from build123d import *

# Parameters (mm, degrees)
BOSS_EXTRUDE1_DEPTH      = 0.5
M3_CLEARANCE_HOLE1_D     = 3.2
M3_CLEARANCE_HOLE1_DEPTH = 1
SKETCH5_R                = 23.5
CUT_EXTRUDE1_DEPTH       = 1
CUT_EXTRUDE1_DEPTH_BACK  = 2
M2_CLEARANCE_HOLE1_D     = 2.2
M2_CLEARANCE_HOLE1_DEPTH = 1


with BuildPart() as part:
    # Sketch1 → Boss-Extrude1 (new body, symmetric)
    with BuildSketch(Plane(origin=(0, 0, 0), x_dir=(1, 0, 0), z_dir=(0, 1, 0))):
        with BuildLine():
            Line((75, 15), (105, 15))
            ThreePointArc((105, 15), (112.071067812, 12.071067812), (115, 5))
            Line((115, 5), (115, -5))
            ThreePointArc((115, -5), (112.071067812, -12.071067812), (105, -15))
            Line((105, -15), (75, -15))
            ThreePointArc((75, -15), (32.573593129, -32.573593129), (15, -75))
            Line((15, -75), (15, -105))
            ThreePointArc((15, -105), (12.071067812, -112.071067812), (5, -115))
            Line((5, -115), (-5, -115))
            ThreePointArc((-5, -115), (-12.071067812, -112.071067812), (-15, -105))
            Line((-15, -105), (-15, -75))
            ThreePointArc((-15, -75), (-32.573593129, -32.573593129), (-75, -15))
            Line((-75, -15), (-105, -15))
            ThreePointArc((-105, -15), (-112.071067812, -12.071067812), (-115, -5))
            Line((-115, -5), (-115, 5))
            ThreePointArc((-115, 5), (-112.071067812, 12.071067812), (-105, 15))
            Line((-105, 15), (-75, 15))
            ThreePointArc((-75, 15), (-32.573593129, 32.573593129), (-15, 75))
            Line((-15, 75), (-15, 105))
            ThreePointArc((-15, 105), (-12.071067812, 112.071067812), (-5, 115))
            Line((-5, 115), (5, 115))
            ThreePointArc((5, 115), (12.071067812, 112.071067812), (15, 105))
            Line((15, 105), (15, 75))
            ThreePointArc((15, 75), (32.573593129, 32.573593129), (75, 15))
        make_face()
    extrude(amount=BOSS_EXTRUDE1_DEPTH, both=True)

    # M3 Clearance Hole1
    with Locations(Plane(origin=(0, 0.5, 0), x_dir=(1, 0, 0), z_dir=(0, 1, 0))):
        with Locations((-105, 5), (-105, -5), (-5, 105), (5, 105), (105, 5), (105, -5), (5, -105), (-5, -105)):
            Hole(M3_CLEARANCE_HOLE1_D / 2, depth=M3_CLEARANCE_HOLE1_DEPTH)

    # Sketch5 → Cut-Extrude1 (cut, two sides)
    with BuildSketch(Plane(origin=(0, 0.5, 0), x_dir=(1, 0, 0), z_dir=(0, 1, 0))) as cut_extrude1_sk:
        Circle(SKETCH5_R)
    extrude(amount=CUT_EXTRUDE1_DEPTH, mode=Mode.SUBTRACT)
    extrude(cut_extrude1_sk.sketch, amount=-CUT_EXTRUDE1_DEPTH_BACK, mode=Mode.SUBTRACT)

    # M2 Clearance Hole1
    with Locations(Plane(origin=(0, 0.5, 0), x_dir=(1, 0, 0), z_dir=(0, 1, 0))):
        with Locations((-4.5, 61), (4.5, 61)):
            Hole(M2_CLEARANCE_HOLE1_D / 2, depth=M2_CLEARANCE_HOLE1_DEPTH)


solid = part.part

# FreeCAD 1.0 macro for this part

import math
import FreeCAD as App
import Part
import Sketcher

doc = App.newDocument("Part")
body = doc.addObject("PartDesign::Body", "Body")

sketch1 = body.newObject("Sketcher::SketchObject", "Sketch")
sketch1.AttachmentSupport = (doc.getObject("XZ_Plane"), [""])
sketch1.MapMode = "FlatFace"
sketch1.addGeometry([
    Part.LineSegment(App.Vector(105, -15, 0), App.Vector(75, -15, 0)),
    Part.ArcOfCircle(Part.Circle(App.Vector(75, -75, 0), App.Vector(0, 0, 1), 60), math.radians(90), math.radians(180)),
    Part.LineSegment(App.Vector(15, -75, 0), App.Vector(15, -105, 0)),
    Part.ArcOfCircle(Part.Circle(App.Vector(5, -105, 0), App.Vector(0, 0, 1), 10), math.radians(-90), math.radians(0)),
    Part.LineSegment(App.Vector(5, -115, 0), App.Vector(-5, -115, 0)),
    Part.ArcOfCircle(Part.Circle(App.Vector(-5, -105, 0), App.Vector(0, 0, 1), 10), math.radians(180), math.radians(270)),
    Part.LineSegment(App.Vector(-15, -105, 0), App.Vector(-15, -75, 0)),
    Part.ArcOfCircle(Part.Circle(App.Vector(-75, -75, 0), App.Vector(0, 0, 1), 60), math.radians(0), math.radians(90)),
    Part.LineSegment(App.Vector(-75, -15, 0), App.Vector(-105, -15, 0)),
    Part.ArcOfCircle(Part.Circle(App.Vector(-105, -5, 0), App.Vector(0, 0, 1), 10), math.radians(180), math.radians(270)),
    Part.LineSegment(App.Vector(-115, -5, 0), App.Vector(-115, 5, 0)),
    Part.ArcOfCircle(Part.Circle(App.Vector(-105, 5, 0), App.Vector(0, 0, 1), 10), math.radians(90), math.radians(180)),
    Part.LineSegment(App.Vector(-105, 15, 0), App.Vector(-75, 15, 0)),
    Part.ArcOfCircle(Part.Circle(App.Vector(-75, 75, 0), App.Vector(0, 0, 1), 60), math.radians(-90), math.radians(0)),
    Part.LineSegment(App.Vector(-15, 75, 0), App.Vector(-15, 105, 0)),
    Part.ArcOfCircle(Part.Circle(App.Vector(-5, 105, 0), App.Vector(0, 0, 1), 10), math.radians(90), math.radians(180)),
    Part.LineSegment(App.Vector(-5, 115, 0), App.Vector(5, 115, 0)),
    Part.ArcOfCircle(Part.Circle(App.Vector(5, 105, 0), App.Vector(0, 0, 1), 10), math.radians(0), math.radians(90)),
    Part.LineSegment(App.Vector(15, 105, 0), App.Vector(15, 75, 0)),
    Part.ArcOfCircle(Part.Circle(App.Vector(75, 75, 0), App.Vector(0, 0, 1), 60), math.radians(-180), math.radians(-90)),
    Part.LineSegment(App.Vector(75, 15, 0), App.Vector(105, 15, 0)),
    Part.ArcOfCircle(Part.Circle(App.Vector(105, 5, 0), App.Vector(0, 0, 1), 10), math.radians(0), math.radians(90)),
    Part.LineSegment(App.Vector(115, 5, 0), App.Vector(115, -5, 0)),
    Part.ArcOfCircle(Part.Circle(App.Vector(105, -5, 0), App.Vector(0, 0, 1), 10), math.radians(-90), math.radians(0)),
], False)
sketch1.addConstraint([
    Sketcher.Constraint("Tangent", 0, 2, 1, 1),
    Sketcher.Constraint("Tangent", 1, 2, 2, 1),
    Sketcher.Constraint("Tangent", 2, 2, 3, 2),
    Sketcher.Constraint("Tangent", 3, 1, 4, 1),
    Sketcher.Constraint("Tangent", 4, 2, 5, 2),
    Sketcher.Constraint("Tangent", 5, 1, 6, 1),
    Sketcher.Constraint("Tangent", 6, 2, 7, 1),
    Sketcher.Constraint("Tangent", 7, 2, 8, 1),
    Sketcher.Constraint("Tangent", 8, 2, 9, 2),
    Sketcher.Constraint("Tangent", 9, 1, 10, 1),
    Sketcher.Constraint("Tangent", 10, 2, 11, 2),
    Sketcher.Constraint("Tangent", 11, 1, 12, 1),
    Sketcher.Constraint("Tangent", 12, 2, 13, 1),
    Sketcher.Constraint("Tangent", 13, 2, 14, 1),
    Sketcher.Constraint("Tangent", 14, 2, 15, 2),
    Sketcher.Constraint("Tangent", 15, 1, 16, 1),
    Sketcher.Constraint("Tangent", 16, 2, 17, 2),
    Sketcher.Constraint("Tangent", 17, 1, 18, 1),
    Sketcher.Constraint("Tangent", 18, 2, 19, 1),
    Sketcher.Constraint("Tangent", 19, 2, 20, 1),
    Sketcher.Constraint("Tangent", 20, 2, 21, 2),
    Sketcher.Constraint("Tangent", 21, 1, 22, 1),
    Sketcher.Constraint("Tangent", 22, 2, 23, 2),
    Sketcher.Constraint("Tangent", 23, 1, 0, 1),
    Sketcher.Constraint("Horizontal", 0),
    Sketcher.Constraint("Vertical", 2),
    Sketcher.Constraint("Horizontal", 4),
    Sketcher.Constraint("Vertical", 6),
    Sketcher.Constraint("Horizontal", 8),
    Sketcher.Constraint("Vertical", 10),
    Sketcher.Constraint("Horizontal", 12),
    Sketcher.Constraint("Vertical", 14),
    Sketcher.Constraint("Horizontal", 16),
    Sketcher.Constraint("Vertical", 18),
    Sketcher.Constraint("Horizontal", 20),
    Sketcher.Constraint("Vertical", 22),
    Sketcher.Constraint("Equal", 3, 5),
    Sketcher.Constraint("Equal", 1, 7),
    Sketcher.Constraint("Equal", 5, 9),
    Sketcher.Constraint("Equal", 9, 11),
    Sketcher.Constraint("Equal", 7, 13),
    Sketcher.Constraint("Equal", 11, 15),
    Sketcher.Constraint("Equal", 15, 17),
    Sketcher.Constraint("Equal", 13, 19),
    Sketcher.Constraint("Equal", 17, 21),
    Sketcher.Constraint("Equal", 21, 23),
    Sketcher.Constraint("Symmetric", 1, 3, 13, 3, -1, 1),
    Sketcher.Constraint("Symmetric", 5, 3, 17, 3, -1, 1),
    Sketcher.Constraint("Symmetric", 9, 3, 21, 3, -1, 1),
    Sketcher.Constraint("Symmetric", 1, 3, 7, 3, -2),
    Sketcher.Constraint("Equal", 20, 2),
    Sketcher.Constraint("Equal", 16, 10),
    Sketcher.Constraint("Radius", 1, 60.0),
    Sketcher.Constraint("Radius", 3, 10.0),
    Sketcher.Constraint("DistanceX", 0, 2, 0, 1, 30.0),
    Sketcher.Constraint("DistanceX", 4, 2, 4, 1, 10.0),
])
pad1 = body.newObject("PartDesign::Pad", "Pad")
pad1.Profile = sketch1
pad1.Length = 1
pad1.Midplane = True

sketch2 = body.newObject("Sketcher::SketchObject", "Sketch001")
sketch2.AttachmentSupport = (doc.getObject("XZ_Plane"), [""])
sketch2.MapMode = "FlatFace"
sketch2.AttachmentOffset = App.Placement(App.Vector(0, 0, -0.5), App.Rotation())
sketch2.addGeometry([
    Part.Circle(App.Vector(-105, -5, 0), App.Vector(0, 0, 1), 1.6),
    Part.Circle(App.Vector(-105, 5, 0), App.Vector(0, 0, 1), 1.6),
    Part.Circle(App.Vector(-5, -105, 0), App.Vector(0, 0, 1), 1.6),
    Part.Circle(App.Vector(5, -105, 0), App.Vector(0, 0, 1), 1.6),
    Part.Circle(App.Vector(105, -5, 0), App.Vector(0, 0, 1), 1.6),
    Part.Circle(App.Vector(105, 5, 0), App.Vector(0, 0, 1), 1.6),
    Part.Circle(App.Vector(5, 105, 0), App.Vector(0, 0, 1), 1.6),
    Part.Circle(App.Vector(-5, 105, 0), App.Vector(0, 0, 1), 1.6),
], False)
sketch2.addConstraint([
    Sketcher.Constraint("Equal", 0, 1),
    Sketcher.Constraint("Equal", 1, 2),
    Sketcher.Constraint("Equal", 2, 3),
    Sketcher.Constraint("Equal", 3, 4),
    Sketcher.Constraint("Equal", 4, 5),
    Sketcher.Constraint("Equal", 5, 6),
    Sketcher.Constraint("Equal", 6, 7),
    Sketcher.Constraint("Symmetric", 1, 3, 4, 3, -1, 1),
    Sketcher.Constraint("Symmetric", 0, 3, 5, 3, -1, 1),
    Sketcher.Constraint("Symmetric", 2, 3, 6, 3, -1, 1),
    Sketcher.Constraint("Symmetric", 3, 3, 7, 3, -1, 1),
    Sketcher.Constraint("Symmetric", 2, 3, 3, 3, -2),
    Sketcher.Constraint("Symmetric", 0, 3, 4, 3, -2),
    Sketcher.Constraint("Diameter", 0, 3.2),
    Sketcher.Constraint("DistanceX", 0, 3, -1, 1, 105.0),
    Sketcher.Constraint("DistanceY", 0, 3, -1, 1, 5.0),
    Sketcher.Constraint("DistanceX", 2, 3, -1, 1, 5.0),
    Sketcher.Constraint("DistanceY", 2, 3, -1, 1, 105.0),
])
doc.recompute()
hole = body.newObject("PartDesign::Hole", "Hole")
hole.Profile = sketch2
hole.ThreadType = "None"
hole.Diameter = 3.2
hole.DepthType = "Dimension"
hole.Depth = 1
hole.DrillPoint = "Flat"
hole.Reversed = True

sketch3 = body.newObject("Sketcher::SketchObject", "Sketch002")
sketch3.AttachmentSupport = (doc.getObject("XZ_Plane"), [""])
sketch3.MapMode = "FlatFace"
sketch3.AttachmentOffset = App.Placement(App.Vector(0, 0, -0.5), App.Rotation())
sketch3.addGeometry(Part.Circle(App.Vector(0, 0, 0), App.Vector(0, 0, 1), 23.5), False)
sketch3.addConstraint([
    Sketcher.Constraint("Coincident", 0, 3, -1, 1),
    Sketcher.Constraint("Diameter", 0, 47.0),
])
pocket1 = body.newObject("PartDesign::Pocket", "Pocket")
pocket1.Profile = sketch3
pocket1.Type = "ThroughAll"
pocket1.Midplane = True

sketch4 = body.newObject("Sketcher::SketchObject", "Sketch003")
sketch4.AttachmentSupport = (doc.getObject("XZ_Plane"), [""])
sketch4.MapMode = "FlatFace"
sketch4.AttachmentOffset = App.Placement(App.Vector(0, 0, -0.5), App.Rotation())
sketch4.addGeometry([
    Part.Circle(App.Vector(-4.5, -61, 0), App.Vector(0, 0, 1), 1.1),
    Part.Circle(App.Vector(4.5, -61, 0), App.Vector(0, 0, 1), 1.1),
], False)
sketch4.addConstraint([
    Sketcher.Constraint("Equal", 0, 1),
    Sketcher.Constraint("Symmetric", 0, 3, 1, 3, -2),
    Sketcher.Constraint("Diameter", 0, 2.2),
    Sketcher.Constraint("DistanceY", 0, 3, -1, 1, 61.0),
    Sketcher.Constraint("DistanceX", 0, 3, 1, 3, 9.0),
])
doc.recompute()
hole2 = body.newObject("PartDesign::Hole", "Hole001")
hole2.Profile = sketch4
hole2.ThreadType = "None"
hole2.Diameter = 2.2
hole2.DepthType = "Dimension"
hole2.Depth = 1
hole2.DrillPoint = "Flat"
hole2.Reversed = True

doc.recompute()
